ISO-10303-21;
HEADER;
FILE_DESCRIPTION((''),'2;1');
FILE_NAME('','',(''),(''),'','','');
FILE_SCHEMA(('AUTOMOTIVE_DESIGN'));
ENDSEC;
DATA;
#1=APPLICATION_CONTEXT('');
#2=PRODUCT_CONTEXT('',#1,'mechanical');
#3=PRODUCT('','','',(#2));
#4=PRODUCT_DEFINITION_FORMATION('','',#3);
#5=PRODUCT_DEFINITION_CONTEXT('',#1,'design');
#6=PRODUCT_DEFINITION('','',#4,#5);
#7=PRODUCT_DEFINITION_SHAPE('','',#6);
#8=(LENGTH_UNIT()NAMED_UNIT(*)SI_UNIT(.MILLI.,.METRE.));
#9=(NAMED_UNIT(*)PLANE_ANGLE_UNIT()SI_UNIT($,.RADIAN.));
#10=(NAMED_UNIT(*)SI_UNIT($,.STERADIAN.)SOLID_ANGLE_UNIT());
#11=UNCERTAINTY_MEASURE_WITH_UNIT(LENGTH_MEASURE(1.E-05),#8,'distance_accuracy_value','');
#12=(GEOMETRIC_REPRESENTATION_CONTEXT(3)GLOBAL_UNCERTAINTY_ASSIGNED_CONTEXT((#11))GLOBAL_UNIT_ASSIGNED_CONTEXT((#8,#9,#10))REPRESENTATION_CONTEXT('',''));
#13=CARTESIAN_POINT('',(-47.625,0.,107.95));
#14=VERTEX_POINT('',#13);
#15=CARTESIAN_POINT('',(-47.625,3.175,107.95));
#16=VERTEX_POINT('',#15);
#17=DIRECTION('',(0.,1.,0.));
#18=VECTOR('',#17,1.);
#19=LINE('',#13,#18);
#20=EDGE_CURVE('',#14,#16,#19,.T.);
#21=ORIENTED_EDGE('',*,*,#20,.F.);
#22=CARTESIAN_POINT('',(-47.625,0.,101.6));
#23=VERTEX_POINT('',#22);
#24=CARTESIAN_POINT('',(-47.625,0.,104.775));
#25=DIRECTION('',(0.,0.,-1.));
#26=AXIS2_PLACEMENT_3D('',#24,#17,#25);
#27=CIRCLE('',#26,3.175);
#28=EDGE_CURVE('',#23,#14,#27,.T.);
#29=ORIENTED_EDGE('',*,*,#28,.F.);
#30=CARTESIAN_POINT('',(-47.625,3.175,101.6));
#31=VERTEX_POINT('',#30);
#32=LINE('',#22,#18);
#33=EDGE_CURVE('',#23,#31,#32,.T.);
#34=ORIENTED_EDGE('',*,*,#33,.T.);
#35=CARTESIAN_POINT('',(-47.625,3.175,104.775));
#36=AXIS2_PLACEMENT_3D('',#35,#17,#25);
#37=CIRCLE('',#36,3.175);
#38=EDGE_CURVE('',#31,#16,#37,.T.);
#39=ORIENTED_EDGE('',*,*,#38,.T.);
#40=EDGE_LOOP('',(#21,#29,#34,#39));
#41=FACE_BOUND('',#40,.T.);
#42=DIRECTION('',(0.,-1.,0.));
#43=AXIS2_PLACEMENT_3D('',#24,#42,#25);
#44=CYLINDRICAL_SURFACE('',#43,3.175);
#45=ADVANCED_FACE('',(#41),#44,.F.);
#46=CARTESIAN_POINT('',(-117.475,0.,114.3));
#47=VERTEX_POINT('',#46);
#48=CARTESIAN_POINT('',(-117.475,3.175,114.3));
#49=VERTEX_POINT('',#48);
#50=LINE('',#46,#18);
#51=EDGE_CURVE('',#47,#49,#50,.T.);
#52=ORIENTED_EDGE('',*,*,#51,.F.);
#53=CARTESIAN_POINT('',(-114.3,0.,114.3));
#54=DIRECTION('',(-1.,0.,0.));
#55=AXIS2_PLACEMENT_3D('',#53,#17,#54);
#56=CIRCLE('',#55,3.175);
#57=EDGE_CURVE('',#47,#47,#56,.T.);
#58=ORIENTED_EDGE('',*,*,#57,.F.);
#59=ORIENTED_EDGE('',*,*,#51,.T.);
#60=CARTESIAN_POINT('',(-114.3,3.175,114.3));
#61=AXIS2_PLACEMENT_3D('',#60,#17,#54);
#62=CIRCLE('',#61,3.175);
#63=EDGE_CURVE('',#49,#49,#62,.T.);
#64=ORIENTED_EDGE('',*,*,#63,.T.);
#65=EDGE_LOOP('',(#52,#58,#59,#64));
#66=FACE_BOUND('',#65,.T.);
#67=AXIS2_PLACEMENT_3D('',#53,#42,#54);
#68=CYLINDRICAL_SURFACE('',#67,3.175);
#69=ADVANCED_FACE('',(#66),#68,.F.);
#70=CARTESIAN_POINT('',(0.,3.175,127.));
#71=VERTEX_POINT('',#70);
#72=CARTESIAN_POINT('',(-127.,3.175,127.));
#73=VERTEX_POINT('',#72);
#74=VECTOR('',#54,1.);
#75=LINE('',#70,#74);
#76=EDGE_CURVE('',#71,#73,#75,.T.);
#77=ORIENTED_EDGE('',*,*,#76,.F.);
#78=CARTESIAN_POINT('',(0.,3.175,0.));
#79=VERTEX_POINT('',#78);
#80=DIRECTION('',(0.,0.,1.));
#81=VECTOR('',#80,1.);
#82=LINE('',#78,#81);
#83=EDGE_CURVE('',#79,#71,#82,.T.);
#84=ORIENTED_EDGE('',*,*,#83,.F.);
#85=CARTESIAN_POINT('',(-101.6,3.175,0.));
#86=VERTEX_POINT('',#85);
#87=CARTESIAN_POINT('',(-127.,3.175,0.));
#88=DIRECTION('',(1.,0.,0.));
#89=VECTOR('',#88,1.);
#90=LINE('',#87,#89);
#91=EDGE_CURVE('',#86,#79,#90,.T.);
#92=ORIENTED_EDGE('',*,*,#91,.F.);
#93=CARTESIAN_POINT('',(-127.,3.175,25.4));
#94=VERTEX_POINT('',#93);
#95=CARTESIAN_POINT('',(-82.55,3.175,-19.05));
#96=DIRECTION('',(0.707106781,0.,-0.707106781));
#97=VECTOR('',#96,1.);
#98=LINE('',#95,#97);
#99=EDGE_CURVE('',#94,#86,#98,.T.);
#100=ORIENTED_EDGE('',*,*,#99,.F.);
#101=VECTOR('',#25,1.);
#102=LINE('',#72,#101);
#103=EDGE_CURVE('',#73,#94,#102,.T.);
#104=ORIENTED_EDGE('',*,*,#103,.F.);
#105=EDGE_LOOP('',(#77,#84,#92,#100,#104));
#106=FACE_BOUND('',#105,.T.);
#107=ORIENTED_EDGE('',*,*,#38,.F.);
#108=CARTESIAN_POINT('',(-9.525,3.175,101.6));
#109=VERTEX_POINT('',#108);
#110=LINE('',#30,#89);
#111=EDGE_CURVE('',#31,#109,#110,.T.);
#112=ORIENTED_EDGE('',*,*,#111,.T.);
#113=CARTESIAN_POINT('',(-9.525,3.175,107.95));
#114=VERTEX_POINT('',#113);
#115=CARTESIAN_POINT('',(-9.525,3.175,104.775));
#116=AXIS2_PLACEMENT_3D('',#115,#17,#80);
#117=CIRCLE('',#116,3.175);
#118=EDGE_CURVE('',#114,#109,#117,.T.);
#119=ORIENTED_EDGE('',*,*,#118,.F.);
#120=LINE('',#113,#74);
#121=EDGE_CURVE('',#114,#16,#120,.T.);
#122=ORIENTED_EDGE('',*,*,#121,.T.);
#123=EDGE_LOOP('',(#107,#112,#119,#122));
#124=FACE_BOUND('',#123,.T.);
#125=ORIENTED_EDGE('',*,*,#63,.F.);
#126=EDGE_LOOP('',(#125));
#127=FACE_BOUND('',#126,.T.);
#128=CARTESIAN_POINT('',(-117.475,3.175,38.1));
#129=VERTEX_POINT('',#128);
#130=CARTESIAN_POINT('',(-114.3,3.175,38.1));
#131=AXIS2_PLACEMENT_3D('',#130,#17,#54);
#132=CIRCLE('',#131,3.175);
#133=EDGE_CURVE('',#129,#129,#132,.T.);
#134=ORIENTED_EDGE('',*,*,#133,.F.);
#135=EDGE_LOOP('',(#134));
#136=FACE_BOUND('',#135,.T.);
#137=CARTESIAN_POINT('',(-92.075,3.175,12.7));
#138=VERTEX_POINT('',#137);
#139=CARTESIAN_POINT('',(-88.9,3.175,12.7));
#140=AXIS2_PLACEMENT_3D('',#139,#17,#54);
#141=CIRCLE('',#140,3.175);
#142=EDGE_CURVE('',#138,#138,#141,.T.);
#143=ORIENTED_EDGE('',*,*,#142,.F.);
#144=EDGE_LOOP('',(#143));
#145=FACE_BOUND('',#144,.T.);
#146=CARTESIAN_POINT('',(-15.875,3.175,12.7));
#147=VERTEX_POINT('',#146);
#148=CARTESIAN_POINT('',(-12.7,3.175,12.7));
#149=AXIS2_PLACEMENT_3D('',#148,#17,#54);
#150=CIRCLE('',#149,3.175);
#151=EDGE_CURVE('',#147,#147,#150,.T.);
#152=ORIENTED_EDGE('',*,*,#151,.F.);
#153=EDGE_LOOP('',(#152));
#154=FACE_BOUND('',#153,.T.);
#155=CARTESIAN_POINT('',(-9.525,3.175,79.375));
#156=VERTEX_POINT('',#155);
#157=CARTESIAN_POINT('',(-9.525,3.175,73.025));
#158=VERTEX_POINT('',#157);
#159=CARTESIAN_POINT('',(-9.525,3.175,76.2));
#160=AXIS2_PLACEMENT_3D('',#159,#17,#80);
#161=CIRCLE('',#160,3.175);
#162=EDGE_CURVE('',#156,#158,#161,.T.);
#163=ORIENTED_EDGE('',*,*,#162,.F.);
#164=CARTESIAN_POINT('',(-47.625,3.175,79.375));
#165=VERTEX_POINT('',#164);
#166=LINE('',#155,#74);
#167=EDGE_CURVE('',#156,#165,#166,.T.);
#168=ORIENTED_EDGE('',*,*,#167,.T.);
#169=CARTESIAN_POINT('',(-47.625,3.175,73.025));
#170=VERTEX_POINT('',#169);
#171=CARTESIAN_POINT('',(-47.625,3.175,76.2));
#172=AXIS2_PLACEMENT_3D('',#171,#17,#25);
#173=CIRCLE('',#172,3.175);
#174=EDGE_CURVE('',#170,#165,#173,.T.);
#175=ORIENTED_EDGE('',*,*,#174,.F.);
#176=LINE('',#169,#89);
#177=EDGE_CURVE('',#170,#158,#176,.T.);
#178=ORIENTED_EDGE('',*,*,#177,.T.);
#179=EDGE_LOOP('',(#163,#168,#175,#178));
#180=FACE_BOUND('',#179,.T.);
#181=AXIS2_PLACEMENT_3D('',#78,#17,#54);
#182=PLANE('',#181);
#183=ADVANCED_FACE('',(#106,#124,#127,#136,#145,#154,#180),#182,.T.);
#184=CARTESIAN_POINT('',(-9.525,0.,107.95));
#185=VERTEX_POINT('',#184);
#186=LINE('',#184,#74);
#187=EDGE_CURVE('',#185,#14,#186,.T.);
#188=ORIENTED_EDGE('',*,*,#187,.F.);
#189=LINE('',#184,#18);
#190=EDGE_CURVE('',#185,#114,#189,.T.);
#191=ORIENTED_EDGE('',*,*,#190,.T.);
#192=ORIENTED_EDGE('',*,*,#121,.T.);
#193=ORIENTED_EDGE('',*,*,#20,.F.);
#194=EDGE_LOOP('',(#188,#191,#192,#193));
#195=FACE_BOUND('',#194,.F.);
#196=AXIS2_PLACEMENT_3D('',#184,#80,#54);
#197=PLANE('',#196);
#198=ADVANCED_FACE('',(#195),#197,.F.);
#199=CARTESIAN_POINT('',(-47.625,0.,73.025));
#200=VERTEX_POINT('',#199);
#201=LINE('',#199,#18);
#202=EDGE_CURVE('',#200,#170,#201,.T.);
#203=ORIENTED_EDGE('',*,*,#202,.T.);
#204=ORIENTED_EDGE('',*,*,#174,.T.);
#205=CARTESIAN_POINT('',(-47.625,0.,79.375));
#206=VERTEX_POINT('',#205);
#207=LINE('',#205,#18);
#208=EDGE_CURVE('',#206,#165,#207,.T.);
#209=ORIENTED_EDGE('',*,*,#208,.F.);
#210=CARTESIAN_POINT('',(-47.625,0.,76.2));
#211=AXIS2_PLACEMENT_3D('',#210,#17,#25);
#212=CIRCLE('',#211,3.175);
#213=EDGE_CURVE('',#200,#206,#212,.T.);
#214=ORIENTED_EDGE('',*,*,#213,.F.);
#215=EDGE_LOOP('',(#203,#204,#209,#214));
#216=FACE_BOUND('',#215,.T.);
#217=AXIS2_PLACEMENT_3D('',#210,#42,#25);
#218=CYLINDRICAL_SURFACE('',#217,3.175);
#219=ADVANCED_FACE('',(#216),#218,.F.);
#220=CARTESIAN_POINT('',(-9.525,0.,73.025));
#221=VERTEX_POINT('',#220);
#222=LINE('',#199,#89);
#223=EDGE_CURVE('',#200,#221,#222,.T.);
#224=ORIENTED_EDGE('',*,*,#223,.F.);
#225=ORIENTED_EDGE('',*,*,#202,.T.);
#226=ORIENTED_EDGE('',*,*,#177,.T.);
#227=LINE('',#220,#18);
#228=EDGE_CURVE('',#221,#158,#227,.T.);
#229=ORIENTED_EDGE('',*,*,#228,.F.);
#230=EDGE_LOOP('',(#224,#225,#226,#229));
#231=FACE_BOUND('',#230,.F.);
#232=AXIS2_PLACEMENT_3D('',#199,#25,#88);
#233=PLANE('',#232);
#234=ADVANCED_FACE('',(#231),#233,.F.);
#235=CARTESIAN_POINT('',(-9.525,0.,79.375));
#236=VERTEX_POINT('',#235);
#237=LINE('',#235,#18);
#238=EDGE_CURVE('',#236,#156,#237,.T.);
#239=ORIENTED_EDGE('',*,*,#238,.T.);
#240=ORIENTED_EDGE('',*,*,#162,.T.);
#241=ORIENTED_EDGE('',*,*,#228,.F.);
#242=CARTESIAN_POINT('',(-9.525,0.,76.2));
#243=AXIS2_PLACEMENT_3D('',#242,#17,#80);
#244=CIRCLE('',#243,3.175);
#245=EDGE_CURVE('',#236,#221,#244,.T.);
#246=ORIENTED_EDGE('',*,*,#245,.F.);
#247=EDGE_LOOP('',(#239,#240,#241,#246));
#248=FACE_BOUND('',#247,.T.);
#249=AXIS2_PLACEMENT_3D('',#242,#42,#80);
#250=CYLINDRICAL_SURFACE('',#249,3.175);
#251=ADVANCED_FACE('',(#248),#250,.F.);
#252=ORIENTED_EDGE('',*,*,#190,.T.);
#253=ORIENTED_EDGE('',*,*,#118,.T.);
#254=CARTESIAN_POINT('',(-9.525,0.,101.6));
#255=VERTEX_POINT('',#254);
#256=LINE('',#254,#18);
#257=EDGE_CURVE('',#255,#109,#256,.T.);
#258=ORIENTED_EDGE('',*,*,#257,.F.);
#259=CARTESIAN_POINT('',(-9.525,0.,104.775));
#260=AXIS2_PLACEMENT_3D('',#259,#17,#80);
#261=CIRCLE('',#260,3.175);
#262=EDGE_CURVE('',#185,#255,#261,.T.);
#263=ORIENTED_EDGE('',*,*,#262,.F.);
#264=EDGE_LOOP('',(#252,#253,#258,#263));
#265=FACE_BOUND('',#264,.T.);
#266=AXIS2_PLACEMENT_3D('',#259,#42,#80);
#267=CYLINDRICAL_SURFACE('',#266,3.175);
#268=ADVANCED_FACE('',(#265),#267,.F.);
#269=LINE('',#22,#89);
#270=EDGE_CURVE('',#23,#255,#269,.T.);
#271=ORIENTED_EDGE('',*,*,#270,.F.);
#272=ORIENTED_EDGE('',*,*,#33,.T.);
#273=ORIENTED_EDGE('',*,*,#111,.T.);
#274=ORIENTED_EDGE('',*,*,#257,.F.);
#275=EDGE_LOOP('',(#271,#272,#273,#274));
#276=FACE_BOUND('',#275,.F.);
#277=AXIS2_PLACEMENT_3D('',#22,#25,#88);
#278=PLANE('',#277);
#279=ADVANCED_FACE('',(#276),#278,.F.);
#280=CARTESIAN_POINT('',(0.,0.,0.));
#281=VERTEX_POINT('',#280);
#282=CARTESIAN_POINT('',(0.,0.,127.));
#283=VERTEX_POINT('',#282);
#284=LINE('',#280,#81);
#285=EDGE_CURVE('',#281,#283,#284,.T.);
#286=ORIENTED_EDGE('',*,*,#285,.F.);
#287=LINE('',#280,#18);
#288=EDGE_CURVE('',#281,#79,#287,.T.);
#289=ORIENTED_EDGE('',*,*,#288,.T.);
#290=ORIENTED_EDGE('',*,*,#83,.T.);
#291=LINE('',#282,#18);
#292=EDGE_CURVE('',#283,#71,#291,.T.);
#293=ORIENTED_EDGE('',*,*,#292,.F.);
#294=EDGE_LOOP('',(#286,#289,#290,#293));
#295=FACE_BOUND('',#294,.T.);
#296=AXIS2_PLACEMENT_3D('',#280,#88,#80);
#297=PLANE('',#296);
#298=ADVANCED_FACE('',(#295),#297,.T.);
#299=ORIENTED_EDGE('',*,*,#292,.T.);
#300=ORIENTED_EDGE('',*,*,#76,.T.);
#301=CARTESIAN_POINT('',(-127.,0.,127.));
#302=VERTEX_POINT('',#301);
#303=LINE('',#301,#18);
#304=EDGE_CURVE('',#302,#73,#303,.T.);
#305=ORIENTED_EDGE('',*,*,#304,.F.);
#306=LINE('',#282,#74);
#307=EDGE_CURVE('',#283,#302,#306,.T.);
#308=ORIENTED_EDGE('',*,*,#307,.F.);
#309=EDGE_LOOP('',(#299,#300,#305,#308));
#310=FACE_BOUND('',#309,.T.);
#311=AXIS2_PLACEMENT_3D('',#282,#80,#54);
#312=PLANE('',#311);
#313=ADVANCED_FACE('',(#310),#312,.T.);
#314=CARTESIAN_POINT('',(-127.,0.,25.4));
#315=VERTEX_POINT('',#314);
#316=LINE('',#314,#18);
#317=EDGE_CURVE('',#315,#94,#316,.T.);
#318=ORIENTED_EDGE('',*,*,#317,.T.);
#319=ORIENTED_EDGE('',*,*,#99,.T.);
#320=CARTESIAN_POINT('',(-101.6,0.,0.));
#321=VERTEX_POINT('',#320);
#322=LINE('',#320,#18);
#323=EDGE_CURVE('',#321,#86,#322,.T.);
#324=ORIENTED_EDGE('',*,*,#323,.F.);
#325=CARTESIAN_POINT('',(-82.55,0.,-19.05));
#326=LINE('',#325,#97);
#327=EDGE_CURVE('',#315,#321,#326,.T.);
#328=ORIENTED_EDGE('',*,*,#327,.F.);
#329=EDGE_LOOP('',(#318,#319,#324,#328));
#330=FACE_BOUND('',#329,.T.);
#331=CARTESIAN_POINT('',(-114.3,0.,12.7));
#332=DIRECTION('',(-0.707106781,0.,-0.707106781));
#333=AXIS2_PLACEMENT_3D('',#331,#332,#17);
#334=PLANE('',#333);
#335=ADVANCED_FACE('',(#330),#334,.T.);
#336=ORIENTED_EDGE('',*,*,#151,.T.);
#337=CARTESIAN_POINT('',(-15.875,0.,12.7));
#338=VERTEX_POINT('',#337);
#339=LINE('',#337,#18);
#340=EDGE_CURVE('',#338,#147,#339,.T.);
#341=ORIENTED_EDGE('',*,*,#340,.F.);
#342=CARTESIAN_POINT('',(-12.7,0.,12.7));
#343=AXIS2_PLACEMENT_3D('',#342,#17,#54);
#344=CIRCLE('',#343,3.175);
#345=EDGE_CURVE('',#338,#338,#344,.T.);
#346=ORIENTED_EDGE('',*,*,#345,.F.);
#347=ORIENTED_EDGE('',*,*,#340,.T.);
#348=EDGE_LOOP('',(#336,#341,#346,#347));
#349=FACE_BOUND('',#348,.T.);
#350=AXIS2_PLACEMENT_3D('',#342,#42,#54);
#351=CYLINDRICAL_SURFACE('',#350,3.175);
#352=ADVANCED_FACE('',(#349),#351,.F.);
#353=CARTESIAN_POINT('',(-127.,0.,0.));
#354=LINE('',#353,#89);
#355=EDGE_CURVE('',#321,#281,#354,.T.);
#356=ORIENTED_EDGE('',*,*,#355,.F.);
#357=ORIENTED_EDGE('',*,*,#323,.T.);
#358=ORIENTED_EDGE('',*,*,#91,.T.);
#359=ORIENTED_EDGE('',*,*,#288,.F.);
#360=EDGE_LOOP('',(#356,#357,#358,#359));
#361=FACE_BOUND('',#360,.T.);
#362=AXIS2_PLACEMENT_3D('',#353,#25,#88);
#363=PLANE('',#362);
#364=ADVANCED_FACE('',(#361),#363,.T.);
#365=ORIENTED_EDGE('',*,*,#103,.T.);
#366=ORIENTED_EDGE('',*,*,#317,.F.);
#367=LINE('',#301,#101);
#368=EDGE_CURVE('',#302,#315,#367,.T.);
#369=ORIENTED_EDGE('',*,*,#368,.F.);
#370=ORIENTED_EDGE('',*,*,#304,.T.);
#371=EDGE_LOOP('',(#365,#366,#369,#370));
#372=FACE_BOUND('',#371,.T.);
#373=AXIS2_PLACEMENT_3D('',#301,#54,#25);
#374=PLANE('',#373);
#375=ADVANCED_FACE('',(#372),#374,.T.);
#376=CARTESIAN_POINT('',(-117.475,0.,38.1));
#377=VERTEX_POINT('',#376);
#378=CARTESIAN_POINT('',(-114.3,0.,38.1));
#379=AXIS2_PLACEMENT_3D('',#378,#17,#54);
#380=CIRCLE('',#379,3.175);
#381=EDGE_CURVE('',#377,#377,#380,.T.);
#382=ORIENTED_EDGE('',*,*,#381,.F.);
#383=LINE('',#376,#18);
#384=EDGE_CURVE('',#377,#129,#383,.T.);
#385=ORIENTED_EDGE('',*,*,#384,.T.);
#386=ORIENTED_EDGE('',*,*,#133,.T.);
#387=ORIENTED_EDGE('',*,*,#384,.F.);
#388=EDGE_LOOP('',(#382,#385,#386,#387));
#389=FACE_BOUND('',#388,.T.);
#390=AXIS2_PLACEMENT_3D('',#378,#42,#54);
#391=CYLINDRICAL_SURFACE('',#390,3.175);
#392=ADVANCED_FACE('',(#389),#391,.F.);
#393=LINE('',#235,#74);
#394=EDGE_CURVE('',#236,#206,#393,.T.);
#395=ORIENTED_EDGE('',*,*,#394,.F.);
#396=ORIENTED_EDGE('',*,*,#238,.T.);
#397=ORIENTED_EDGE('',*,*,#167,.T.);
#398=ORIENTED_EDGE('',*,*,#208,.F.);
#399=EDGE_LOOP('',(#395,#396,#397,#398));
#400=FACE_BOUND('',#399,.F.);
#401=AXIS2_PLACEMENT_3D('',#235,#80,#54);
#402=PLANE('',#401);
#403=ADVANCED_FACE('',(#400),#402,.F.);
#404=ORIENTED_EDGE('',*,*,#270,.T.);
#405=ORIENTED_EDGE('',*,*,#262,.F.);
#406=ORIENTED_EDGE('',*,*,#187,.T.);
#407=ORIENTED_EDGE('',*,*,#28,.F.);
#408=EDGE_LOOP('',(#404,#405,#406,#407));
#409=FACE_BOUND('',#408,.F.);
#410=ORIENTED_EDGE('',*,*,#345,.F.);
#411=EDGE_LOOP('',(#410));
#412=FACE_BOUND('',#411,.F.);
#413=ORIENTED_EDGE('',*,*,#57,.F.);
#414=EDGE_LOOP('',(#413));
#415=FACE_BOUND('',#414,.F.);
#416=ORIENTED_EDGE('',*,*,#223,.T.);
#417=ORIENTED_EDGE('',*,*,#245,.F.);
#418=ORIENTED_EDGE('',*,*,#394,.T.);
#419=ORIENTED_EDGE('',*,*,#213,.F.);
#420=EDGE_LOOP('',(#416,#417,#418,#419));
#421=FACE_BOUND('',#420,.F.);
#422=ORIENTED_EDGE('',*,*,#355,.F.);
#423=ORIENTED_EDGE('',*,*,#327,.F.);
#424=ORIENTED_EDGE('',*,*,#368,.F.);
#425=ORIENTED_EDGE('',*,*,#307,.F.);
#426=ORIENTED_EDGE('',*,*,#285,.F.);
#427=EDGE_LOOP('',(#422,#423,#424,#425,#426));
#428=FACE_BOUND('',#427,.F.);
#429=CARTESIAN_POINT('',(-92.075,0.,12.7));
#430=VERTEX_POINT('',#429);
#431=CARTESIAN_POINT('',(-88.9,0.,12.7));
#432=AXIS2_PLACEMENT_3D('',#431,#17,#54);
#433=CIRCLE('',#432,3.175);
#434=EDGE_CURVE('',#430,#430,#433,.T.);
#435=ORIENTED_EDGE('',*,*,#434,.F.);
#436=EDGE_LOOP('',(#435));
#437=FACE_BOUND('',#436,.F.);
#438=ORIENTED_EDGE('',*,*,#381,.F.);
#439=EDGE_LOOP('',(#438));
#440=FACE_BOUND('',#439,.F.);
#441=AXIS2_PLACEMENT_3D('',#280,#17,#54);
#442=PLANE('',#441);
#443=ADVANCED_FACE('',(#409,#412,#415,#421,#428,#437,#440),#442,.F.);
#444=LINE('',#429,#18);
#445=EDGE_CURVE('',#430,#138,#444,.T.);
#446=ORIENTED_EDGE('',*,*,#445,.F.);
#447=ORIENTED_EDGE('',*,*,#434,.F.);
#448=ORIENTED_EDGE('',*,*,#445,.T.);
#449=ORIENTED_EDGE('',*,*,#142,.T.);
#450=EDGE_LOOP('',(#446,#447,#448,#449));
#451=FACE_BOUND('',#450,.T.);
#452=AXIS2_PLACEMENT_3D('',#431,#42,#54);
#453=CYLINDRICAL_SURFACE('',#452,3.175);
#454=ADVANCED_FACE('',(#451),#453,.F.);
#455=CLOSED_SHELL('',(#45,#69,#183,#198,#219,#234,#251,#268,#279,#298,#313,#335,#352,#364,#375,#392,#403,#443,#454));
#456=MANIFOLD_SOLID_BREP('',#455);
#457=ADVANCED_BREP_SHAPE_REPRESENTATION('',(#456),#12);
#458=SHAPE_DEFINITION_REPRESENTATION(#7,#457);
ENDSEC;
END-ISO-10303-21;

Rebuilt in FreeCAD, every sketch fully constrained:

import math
import FreeCAD as App
import Part
import Sketcher
from FreeCAD import Vector
Q = App.Units.Quantity


def edges_at(feature, points):
    """Names of the edges that pass closest to the given points."""
    edges = feature.Shape.Edges
    near = lambda p: min(range(len(edges)), key=lambda i: edges[i].distToShape(Part.Vertex(*p))[0])
    return sorted({f"Edge{near(p) + 1}" for p in points})


def add_polygon(sketch, points):
    """Adds a closed chain of lines whose ends are joined by coincident constraints."""
    first, n = sketch.GeometryCount, len(points)
    for a, b in zip(points, points[1:] + points[:1]):
        sketch.addGeometry(Part.LineSegment(App.Vector(*a, 0), App.Vector(*b, 0)), False)
    for i in range(n):
        sketch.addConstraint(Sketcher.Constraint("Coincident", first + i, 2, first + (i + 1) % n, 1))

doc = App.newDocument("Part")
params = doc.addObject("Spreadsheet::Sheet", "Params")
for row, (alias, value) in enumerate([
    ("sketch1_diameter", "0.25 in"),
    ("sketch1_width", "5 in"),
    ("sketch1_width2", "1.5 in"),
    ("pad1_length", "0.125 in"),
    ("chamfer_size", "1 in"),
], start=1):
    params.set(f"A{row}", alias)
    params.set(f"B{row}", "=" + value)
    params.setAlias(f"B{row}", alias)

body = doc.addObject("PartDesign::Body", "Body")

# Sketch on XZ plane
sketch1 = doc.addObject("Sketcher::SketchObject", "Sketch")
body.addObject(sketch1)
sketch1.AttachmentSupport = (doc.XZ_Plane, [""])
sketch1.MapMode = "FlatFace"
add_polygon(sketch1, [(0, 127), (0, 0), (-127, 0), (-127, 127)])  # lines 0-3
sketch1.addGeometry(Part.Circle(Vector(-12.7, 12.7, 0), Vector(0, 0, 1), 3.175), False)  # 4
sketch1.addGeometry(Part.Circle(Vector(-88.9, 12.7, 0), Vector(0, 0, 1), 3.175), False)  # 5
sketch1.addGeometry(Part.Circle(Vector(-114.3, 38.1, 0), Vector(0, 0, 1), 3.175), False)  # 6
sketch1.addGeometry(Part.ArcOfCircle(Part.Circle(Vector(-47.625, 76.2, 0), Vector(0, 0, 1), 3.175), math.radians(90), math.radians(270)), False)  # 7
sketch1.addGeometry(Part.LineSegment(Vector(-47.625, 73.025, 0), Vector(-9.525, 73.025, 0)), False)  # 8
sketch1.addGeometry(Part.ArcOfCircle(Part.Circle(Vector(-9.525, 76.2, 0), Vector(0, 0, 1), 3.175), math.radians(-90), math.radians(90)), False)  # 9
sketch1.addGeometry(Part.LineSegment(Vector(-9.525, 79.375, 0), Vector(-47.625, 79.375, 0)), False)  # 10
sketch1.addGeometry(Part.ArcOfCircle(Part.Circle(Vector(-9.525, 104.775, 0), Vector(0, 0, 1), 3.175), math.radians(-90), math.radians(90)), False)  # 11
sketch1.addGeometry(Part.LineSegment(Vector(-9.525, 107.95, 0), Vector(-47.625, 107.95, 0)), False)  # 12
sketch1.addGeometry(Part.ArcOfCircle(Part.Circle(Vector(-47.625, 104.775, 0), Vector(0, 0, 1), 3.175), math.radians(90), math.radians(270)), False)  # 13
sketch1.addGeometry(Part.LineSegment(Vector(-47.625, 101.6, 0), Vector(-9.525, 101.6, 0)), False)  # 14
sketch1.addGeometry(Part.Circle(Vector(-114.3, 114.3, 0), Vector(0, 0, 1), 3.175), False)  # 15
sketch1.addConstraint([
    Sketcher.Constraint("Tangent", 7, 2, 8, 1),
    Sketcher.Constraint("Tangent", 8, 2, 9, 1),
    Sketcher.Constraint("Tangent", 9, 2, 10, 1),
    Sketcher.Constraint("Tangent", 10, 2, 7, 1),
    Sketcher.Constraint("Tangent", 11, 2, 12, 1),
    Sketcher.Constraint("Tangent", 12, 2, 13, 1),
    Sketcher.Constraint("Tangent", 13, 2, 14, 1),
    Sketcher.Constraint("Tangent", 14, 2, 11, 1),
    Sketcher.Constraint("Vertical", 0),
    Sketcher.Constraint("Horizontal", 1),
    Sketcher.Constraint("Vertical", 2),
    Sketcher.Constraint("Horizontal", 3),
    Sketcher.Constraint("Horizontal", 8),
    Sketcher.Constraint("Horizontal", 10),
    Sketcher.Constraint("Horizontal", 12),
    Sketcher.Constraint("Horizontal", 14),
    Sketcher.Constraint("Coincident", 0, 2, -1, 1),
    Sketcher.Constraint("Equal", 4, 5),
    Sketcher.Constraint("Equal", 5, 6),
    Sketcher.Constraint("Equal", 6, 7),
    Sketcher.Constraint("Equal", 9, 11),
    Sketcher.Constraint("Equal", 13, 15),
    Sketcher.Constraint("Horizontal", 4, 3, 5, 3),
    Sketcher.Constraint("Vertical", 9, 3, 11, 3),
    Sketcher.Constraint("Vertical", 7, 3, 13, 3),
    Sketcher.Constraint("Vertical", 6, 3, 15, 3),
    Sketcher.Constraint("Equal", 3, 0),
    Sketcher.Constraint("Diameter", 4, Q("0.25 in")),
    Sketcher.Constraint("DistanceX", 1, 2, 1, 1, Q("5 in")),
    Sketcher.Constraint("DistanceX", 8, 1, 8, 2, Q("1.5 in")),
    Sketcher.Constraint("DistanceY", -1, 1, 7, 3, Q("3 in")),
    Sketcher.Constraint("DistanceX", 5, 3, 4, 3, Q("3 in")),
    Sketcher.Constraint("DistanceY", 6, 3, 15, 3, Q("3 in")),
    Sketcher.Constraint("DistanceX", 4, 3, -1, 1, Q("0.5 in")),
    Sketcher.Constraint("DistanceY", -1, 1, 4, 3, Q("0.5 in")),
    Sketcher.Constraint("DistanceY", -1, 1, 6, 3, Q("1.5 in")),
    Sketcher.Constraint("DistanceX", 1, 2, 6, 3, Q("0.5 in")),
    Sketcher.Constraint("DistanceX", 9, 3, -1, 1, Q("0.375 in")),
    Sketcher.Constraint("DistanceY", -1, 1, 13, 2, Q("4 in")),
])
sketch1.setExpression("Constraints[31]", "Params.sketch1_diameter")
sketch1.setExpression("Constraints[32]", "Params.sketch1_width")
sketch1.setExpression("Constraints[33]", "Params.sketch1_width2")
pad1 = doc.addObject("PartDesign::Pad", "Pad")
body.addObject(pad1)
pad1.Profile = sketch1
pad1.setExpression("Length", "Params.pad1_length")
pad1.Reversed = True
doc.recompute()

chamfer = doc.addObject("PartDesign::Chamfer", "Chamfer")
body.addObject(chamfer)
chamfer.Base = (pad1, edges_at(pad1, [(-127, 1.587, 0)]))
chamfer.setExpression("Size", "Params.chamfer_size")

doc.recompute()
